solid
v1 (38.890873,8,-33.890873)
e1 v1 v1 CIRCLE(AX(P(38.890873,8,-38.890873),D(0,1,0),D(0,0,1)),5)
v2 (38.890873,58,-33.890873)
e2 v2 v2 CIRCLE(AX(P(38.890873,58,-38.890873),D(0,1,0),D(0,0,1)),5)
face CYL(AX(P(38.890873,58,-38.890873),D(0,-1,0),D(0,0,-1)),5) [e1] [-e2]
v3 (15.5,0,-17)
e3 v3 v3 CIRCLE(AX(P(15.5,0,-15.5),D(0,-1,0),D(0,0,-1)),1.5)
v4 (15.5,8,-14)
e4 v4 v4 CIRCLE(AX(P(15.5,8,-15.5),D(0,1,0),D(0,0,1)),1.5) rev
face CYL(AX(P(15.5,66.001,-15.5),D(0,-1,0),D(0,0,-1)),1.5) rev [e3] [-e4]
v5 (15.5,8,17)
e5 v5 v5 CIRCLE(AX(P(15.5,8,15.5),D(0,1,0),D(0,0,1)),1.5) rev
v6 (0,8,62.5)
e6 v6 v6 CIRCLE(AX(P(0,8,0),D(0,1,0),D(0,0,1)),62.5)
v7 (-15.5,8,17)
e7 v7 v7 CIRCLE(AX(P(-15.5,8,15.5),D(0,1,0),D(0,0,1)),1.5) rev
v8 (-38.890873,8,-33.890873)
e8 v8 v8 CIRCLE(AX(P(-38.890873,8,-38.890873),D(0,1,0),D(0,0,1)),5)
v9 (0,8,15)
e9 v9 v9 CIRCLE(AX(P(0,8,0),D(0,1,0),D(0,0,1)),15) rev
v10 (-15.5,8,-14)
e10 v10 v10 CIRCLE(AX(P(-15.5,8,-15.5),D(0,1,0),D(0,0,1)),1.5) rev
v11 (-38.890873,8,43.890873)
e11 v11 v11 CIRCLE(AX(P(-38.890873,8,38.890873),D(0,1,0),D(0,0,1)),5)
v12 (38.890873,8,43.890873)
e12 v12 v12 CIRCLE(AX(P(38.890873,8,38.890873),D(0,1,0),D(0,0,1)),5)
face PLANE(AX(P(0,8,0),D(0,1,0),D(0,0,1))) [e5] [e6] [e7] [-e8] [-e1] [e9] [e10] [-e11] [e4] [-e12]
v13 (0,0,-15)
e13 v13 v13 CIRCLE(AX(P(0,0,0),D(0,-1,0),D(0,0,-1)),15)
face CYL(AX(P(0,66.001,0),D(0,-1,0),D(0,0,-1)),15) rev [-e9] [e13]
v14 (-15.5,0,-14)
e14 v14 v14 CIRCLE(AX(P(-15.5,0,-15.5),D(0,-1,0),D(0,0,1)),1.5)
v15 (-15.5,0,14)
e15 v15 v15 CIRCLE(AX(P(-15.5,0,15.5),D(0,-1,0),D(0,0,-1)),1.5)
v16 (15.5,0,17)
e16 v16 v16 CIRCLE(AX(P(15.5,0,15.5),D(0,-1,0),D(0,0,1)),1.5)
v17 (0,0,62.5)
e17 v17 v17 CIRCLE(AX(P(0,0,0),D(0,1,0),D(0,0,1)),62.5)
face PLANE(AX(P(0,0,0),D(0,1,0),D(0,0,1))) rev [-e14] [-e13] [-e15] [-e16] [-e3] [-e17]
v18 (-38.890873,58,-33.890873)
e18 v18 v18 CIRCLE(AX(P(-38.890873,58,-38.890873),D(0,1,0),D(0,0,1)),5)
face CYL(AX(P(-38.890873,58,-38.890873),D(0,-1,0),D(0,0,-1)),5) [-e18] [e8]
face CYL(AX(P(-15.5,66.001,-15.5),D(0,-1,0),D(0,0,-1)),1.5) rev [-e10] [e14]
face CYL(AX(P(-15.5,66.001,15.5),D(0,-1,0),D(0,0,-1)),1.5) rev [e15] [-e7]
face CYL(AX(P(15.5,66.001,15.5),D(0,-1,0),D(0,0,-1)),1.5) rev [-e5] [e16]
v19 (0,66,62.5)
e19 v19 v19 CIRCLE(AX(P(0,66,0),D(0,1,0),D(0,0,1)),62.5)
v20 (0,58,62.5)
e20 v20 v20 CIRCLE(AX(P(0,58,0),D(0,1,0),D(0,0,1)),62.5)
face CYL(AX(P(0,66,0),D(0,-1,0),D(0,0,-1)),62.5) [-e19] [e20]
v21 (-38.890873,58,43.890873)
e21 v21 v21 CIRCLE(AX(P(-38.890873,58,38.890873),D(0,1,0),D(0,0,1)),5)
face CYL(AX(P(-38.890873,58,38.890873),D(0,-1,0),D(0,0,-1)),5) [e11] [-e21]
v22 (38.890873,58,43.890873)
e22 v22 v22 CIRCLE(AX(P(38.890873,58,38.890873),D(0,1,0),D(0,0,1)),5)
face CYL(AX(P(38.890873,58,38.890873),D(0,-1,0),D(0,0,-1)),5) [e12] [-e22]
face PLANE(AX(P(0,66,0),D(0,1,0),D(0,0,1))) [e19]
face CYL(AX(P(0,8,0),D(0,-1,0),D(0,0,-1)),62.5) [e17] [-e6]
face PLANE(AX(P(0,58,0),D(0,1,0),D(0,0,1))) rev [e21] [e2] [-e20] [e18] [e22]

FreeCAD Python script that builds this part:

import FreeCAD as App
import Part
import Sketcher
Q = App.Units.Quantity

doc = App.newDocument("Part")
params = doc.addObject("Spreadsheet::Sheet", "Params")
for row, (alias, value) in enumerate([
    ("sketch1_diameter", "125 mm"),
    ("pad1_length", "8 mm"),
    ("sketch2_diameter", "10 mm"),
    ("pad2_length", "50 mm"),
    ("sketch3_diameter", "125 mm"),
    ("pad3_length", "8 mm"),
    ("sketch4_diameter", "30 mm"),
    ("sketch5_diameter", "3 mm"),
    ("sketch6_diameter", "3 mm"),
    ("sketch7_diameter", "3 mm"),
    ("sketch8_diameter", "3 mm"),
], start=1):
    params.set(f"A{row}", alias)
    params.set(f"B{row}", "=" + value)
    params.setAlias(f"B{row}", alias)

body = doc.addObject("PartDesign::Body", "Body")

sketch1 = body.newObject("Sketcher::SketchObject", "Sketch")
sketch1.AttachmentSupport = (doc.getObject("XZ_Plane"), [""])
sketch1.MapMode = "FlatFace"
sketch1.addGeometry(Part.Circle(App.Vector(0, 0, 0), App.Vector(0, 0, 1), 62), False)
sketch1.addConstraint(Sketcher.Constraint("Coincident", 0, 3, -1, 1))
sketch1.addConstraint(Sketcher.Constraint("Diameter", 0, Q("125 mm")))
sketch1.setExpression("Constraints[1]", "Params.sketch1_diameter")
pad1 = body.newObject("PartDesign::Pad", "Pad")
pad1.Profile = sketch1
pad1.setExpression("Length", "Params.pad1_length")
pad1.Reversed = True

sketch2 = body.newObject("Sketcher::SketchObject", "Sketch001")
sketch2.AttachmentSupport = (doc.getObject("XZ_Plane"), [""])
sketch2.MapMode = "FlatFace"
sketch2.AttachmentOffset = App.Placement(App.Vector(0, 0, -8), App.Rotation())
sketch2.addGeometry(Part.Circle(App.Vector(39, -39, 0), App.Vector(0, 0, 1), 5), False)
sketch2.addGeometry(Part.Circle(App.Vector(39, 39, 0), App.Vector(0, 0, 1), 5), False)
sketch2.addGeometry(Part.Circle(App.Vector(-39, 39, 0), App.Vector(0, 0, 1), 5), False)
sketch2.addGeometry(Part.Circle(App.Vector(-39, -39, 0), App.Vector(0, 0, 1), 5), False)
sketch2.addConstraint(Sketcher.Constraint("Equal", 0, 1))
sketch2.addConstraint(Sketcher.Constraint("Equal", 1, 2))
sketch2.addConstraint(Sketcher.Constraint("Equal", 2, 3))
sketch2.addConstraint(Sketcher.Constraint("Symmetric", 0, 3, 2, 3, -1, 1))
sketch2.addConstraint(Sketcher.Constraint("Symmetric", 1, 3, 3, 3, -1, 1))
sketch2.addConstraint(Sketcher.Constraint("Symmetric", 1, 3, 2, 3, -2))
sketch2.addConstraint(Sketcher.Constraint("Diameter", 0, Q("10 mm")))
sketch2.addConstraint(Sketcher.Constraint("DistanceX", -1, 1, 0, 3, Q("38.890873 mm")))
sketch2.addConstraint(Sketcher.Constraint("DistanceY", 0, 3, -1, 1, Q("38.890873 mm")))
sketch2.setExpression("Constraints[6]", "Params.sketch2_diameter")
pad2 = body.newObject("PartDesign::Pad", "Pad001")
pad2.Profile = sketch2
pad2.setExpression("Length", "Params.pad2_length")
pad2.Reversed = True

sketch3 = body.newObject("Sketcher::SketchObject", "Sketch002")
sketch3.AttachmentSupport = (doc.getObject("XZ_Plane"), [""])
sketch3.MapMode = "FlatFace"
sketch3.AttachmentOffset = App.Placement(App.Vector(0, 0, -58), App.Rotation())
sketch3.addGeometry(Part.Circle(App.Vector(0, 0, 0), App.Vector(0, 0, 1), 62), False)
sketch3.addConstraint(Sketcher.Constraint("Coincident", 0, 3, -1, 1))
sketch3.addConstraint(Sketcher.Constraint("Diameter", 0, Q("125 mm")))
sketch3.setExpression("Constraints[1]", "Params.sketch3_diameter")
pad3 = body.newObject("PartDesign::Pad", "Pad002")
pad3.Profile = sketch3
pad3.setExpression("Length", "Params.pad3_length")
pad3.Reversed = True

sketch4 = body.newObject("Sketcher::SketchObject", "Sketch003")
sketch4.AttachmentSupport = (doc.getObject("XZ_Plane"), [""])
sketch4.MapMode = "FlatFace"
sketch4.addGeometry(Part.Circle(App.Vector(0, 0, 0), App.Vector(0, 0, 1), 15), False)
sketch4.addConstraint(Sketcher.Constraint("Coincident", 0, 3, -1, 1))
sketch4.addConstraint(Sketcher.Constraint("Diameter", 0, Q("30 mm")))
sketch4.setExpression("Constraints[1]", "Params.sketch4_diameter")
pocket1 = body.newObject("PartDesign::Pocket", "Pocket")
pocket1.Profile = sketch4
pocket1.Type = "UpToFirst"

sketch5 = body.newObject("Sketcher::SketchObject", "Sketch004")
sketch5.AttachmentSupport = (doc.getObject("XZ_Plane"), [""])
sketch5.MapMode = "FlatFace"
sketch5.addGeometry(Part.Circle(App.Vector(-15.5, 15.5, 0), App.Vector(0, 0, 1), 1.5), False)
sketch5.addConstraint(Sketcher.Constraint("Diameter", 0, Q("3 mm")))
sketch5.addConstraint(Sketcher.Constraint("DistanceX", 0, 3, -1, 1, Q("15.5 mm")))
sketch5.addConstraint(Sketcher.Constraint("DistanceY", -1, 1, 0, 3, Q("15.5 mm")))
sketch5.setExpression("Constraints[0]", "Params.sketch5_diameter")
pocket2 = body.newObject("PartDesign::Pocket", "Pocket001")
pocket2.Profile = sketch5
pocket2.Type = "UpToFirst"

sketch6 = body.newObject("Sketcher::SketchObject", "Sketch005")
sketch6.AttachmentSupport = (doc.getObject("XZ_Plane"), [""])
sketch6.MapMode = "FlatFace"
sketch6.addGeometry(Part.Circle(App.Vector(-15.5, -15.5, 0), App.Vector(0, 0, 1), 1.5), False)
sketch6.addConstraint(Sketcher.Constraint("Diameter", 0, Q("3 mm")))
sketch6.addConstraint(Sketcher.Constraint("DistanceX", 0, 3, -1, 1, Q("15.5 mm")))
sketch6.addConstraint(Sketcher.Constraint("DistanceY", 0, 3, -1, 1, Q("15.5 mm")))
sketch6.setExpression("Constraints[0]", "Params.sketch6_diameter")
pocket3 = body.newObject("PartDesign::Pocket", "Pocket002")
pocket3.Profile = sketch6
pocket3.Type = "UpToFirst"

sketch7 = body.newObject("Sketcher::SketchObject", "Sketch006")
sketch7.AttachmentSupport = (doc.getObject("XZ_Plane"), [""])
sketch7.MapMode = "FlatFace"
sketch7.addGeometry(Part.Circle(App.Vector(15.5, 15.5, 0), App.Vector(0, 0, 1), 1.5), False)
sketch7.addConstraint(Sketcher.Constraint("Diameter", 0, Q("3 mm")))
sketch7.addConstraint(Sketcher.Constraint("DistanceX", -1, 1, 0, 3, Q("15.5 mm")))
sketch7.addConstraint(Sketcher.Constraint("DistanceY", -1, 1, 0, 3, Q("15.5 mm")))
sketch7.setExpression("Constraints[0]", "Params.sketch7_diameter")
pocket4 = body.newObject("PartDesign::Pocket", "Pocket003")
pocket4.Profile = sketch7
pocket4.Type = "UpToFirst"

sketch8 = body.newObject("Sketcher::SketchObject", "Sketch007")
sketch8.AttachmentSupport = (doc.getObject("XZ_Plane"), [""])
sketch8.MapMode = "FlatFace"
sketch8.addGeometry(Part.Circle(App.Vector(15.5, -15.5, 0), App.Vector(0, 0, 1), 1.5), False)
sketch8.addConstraint(Sketcher.Constraint("Diameter", 0, Q("3 mm")))
sketch8.addConstraint(Sketcher.Constraint("DistanceX", -1, 1, 0, 3, Q("15.5 mm")))
sketch8.addConstraint(Sketcher.Constraint("DistanceY", 0, 3, -1, 1, Q("15.5 mm")))
sketch8.setExpression("Constraints[0]", "Params.sketch8_diameter")
pocket5 = body.newObject("PartDesign::Pocket", "Pocket004")
pocket5.Profile = sketch8
pocket5.Type = "UpToFirst"

doc.recompute()
